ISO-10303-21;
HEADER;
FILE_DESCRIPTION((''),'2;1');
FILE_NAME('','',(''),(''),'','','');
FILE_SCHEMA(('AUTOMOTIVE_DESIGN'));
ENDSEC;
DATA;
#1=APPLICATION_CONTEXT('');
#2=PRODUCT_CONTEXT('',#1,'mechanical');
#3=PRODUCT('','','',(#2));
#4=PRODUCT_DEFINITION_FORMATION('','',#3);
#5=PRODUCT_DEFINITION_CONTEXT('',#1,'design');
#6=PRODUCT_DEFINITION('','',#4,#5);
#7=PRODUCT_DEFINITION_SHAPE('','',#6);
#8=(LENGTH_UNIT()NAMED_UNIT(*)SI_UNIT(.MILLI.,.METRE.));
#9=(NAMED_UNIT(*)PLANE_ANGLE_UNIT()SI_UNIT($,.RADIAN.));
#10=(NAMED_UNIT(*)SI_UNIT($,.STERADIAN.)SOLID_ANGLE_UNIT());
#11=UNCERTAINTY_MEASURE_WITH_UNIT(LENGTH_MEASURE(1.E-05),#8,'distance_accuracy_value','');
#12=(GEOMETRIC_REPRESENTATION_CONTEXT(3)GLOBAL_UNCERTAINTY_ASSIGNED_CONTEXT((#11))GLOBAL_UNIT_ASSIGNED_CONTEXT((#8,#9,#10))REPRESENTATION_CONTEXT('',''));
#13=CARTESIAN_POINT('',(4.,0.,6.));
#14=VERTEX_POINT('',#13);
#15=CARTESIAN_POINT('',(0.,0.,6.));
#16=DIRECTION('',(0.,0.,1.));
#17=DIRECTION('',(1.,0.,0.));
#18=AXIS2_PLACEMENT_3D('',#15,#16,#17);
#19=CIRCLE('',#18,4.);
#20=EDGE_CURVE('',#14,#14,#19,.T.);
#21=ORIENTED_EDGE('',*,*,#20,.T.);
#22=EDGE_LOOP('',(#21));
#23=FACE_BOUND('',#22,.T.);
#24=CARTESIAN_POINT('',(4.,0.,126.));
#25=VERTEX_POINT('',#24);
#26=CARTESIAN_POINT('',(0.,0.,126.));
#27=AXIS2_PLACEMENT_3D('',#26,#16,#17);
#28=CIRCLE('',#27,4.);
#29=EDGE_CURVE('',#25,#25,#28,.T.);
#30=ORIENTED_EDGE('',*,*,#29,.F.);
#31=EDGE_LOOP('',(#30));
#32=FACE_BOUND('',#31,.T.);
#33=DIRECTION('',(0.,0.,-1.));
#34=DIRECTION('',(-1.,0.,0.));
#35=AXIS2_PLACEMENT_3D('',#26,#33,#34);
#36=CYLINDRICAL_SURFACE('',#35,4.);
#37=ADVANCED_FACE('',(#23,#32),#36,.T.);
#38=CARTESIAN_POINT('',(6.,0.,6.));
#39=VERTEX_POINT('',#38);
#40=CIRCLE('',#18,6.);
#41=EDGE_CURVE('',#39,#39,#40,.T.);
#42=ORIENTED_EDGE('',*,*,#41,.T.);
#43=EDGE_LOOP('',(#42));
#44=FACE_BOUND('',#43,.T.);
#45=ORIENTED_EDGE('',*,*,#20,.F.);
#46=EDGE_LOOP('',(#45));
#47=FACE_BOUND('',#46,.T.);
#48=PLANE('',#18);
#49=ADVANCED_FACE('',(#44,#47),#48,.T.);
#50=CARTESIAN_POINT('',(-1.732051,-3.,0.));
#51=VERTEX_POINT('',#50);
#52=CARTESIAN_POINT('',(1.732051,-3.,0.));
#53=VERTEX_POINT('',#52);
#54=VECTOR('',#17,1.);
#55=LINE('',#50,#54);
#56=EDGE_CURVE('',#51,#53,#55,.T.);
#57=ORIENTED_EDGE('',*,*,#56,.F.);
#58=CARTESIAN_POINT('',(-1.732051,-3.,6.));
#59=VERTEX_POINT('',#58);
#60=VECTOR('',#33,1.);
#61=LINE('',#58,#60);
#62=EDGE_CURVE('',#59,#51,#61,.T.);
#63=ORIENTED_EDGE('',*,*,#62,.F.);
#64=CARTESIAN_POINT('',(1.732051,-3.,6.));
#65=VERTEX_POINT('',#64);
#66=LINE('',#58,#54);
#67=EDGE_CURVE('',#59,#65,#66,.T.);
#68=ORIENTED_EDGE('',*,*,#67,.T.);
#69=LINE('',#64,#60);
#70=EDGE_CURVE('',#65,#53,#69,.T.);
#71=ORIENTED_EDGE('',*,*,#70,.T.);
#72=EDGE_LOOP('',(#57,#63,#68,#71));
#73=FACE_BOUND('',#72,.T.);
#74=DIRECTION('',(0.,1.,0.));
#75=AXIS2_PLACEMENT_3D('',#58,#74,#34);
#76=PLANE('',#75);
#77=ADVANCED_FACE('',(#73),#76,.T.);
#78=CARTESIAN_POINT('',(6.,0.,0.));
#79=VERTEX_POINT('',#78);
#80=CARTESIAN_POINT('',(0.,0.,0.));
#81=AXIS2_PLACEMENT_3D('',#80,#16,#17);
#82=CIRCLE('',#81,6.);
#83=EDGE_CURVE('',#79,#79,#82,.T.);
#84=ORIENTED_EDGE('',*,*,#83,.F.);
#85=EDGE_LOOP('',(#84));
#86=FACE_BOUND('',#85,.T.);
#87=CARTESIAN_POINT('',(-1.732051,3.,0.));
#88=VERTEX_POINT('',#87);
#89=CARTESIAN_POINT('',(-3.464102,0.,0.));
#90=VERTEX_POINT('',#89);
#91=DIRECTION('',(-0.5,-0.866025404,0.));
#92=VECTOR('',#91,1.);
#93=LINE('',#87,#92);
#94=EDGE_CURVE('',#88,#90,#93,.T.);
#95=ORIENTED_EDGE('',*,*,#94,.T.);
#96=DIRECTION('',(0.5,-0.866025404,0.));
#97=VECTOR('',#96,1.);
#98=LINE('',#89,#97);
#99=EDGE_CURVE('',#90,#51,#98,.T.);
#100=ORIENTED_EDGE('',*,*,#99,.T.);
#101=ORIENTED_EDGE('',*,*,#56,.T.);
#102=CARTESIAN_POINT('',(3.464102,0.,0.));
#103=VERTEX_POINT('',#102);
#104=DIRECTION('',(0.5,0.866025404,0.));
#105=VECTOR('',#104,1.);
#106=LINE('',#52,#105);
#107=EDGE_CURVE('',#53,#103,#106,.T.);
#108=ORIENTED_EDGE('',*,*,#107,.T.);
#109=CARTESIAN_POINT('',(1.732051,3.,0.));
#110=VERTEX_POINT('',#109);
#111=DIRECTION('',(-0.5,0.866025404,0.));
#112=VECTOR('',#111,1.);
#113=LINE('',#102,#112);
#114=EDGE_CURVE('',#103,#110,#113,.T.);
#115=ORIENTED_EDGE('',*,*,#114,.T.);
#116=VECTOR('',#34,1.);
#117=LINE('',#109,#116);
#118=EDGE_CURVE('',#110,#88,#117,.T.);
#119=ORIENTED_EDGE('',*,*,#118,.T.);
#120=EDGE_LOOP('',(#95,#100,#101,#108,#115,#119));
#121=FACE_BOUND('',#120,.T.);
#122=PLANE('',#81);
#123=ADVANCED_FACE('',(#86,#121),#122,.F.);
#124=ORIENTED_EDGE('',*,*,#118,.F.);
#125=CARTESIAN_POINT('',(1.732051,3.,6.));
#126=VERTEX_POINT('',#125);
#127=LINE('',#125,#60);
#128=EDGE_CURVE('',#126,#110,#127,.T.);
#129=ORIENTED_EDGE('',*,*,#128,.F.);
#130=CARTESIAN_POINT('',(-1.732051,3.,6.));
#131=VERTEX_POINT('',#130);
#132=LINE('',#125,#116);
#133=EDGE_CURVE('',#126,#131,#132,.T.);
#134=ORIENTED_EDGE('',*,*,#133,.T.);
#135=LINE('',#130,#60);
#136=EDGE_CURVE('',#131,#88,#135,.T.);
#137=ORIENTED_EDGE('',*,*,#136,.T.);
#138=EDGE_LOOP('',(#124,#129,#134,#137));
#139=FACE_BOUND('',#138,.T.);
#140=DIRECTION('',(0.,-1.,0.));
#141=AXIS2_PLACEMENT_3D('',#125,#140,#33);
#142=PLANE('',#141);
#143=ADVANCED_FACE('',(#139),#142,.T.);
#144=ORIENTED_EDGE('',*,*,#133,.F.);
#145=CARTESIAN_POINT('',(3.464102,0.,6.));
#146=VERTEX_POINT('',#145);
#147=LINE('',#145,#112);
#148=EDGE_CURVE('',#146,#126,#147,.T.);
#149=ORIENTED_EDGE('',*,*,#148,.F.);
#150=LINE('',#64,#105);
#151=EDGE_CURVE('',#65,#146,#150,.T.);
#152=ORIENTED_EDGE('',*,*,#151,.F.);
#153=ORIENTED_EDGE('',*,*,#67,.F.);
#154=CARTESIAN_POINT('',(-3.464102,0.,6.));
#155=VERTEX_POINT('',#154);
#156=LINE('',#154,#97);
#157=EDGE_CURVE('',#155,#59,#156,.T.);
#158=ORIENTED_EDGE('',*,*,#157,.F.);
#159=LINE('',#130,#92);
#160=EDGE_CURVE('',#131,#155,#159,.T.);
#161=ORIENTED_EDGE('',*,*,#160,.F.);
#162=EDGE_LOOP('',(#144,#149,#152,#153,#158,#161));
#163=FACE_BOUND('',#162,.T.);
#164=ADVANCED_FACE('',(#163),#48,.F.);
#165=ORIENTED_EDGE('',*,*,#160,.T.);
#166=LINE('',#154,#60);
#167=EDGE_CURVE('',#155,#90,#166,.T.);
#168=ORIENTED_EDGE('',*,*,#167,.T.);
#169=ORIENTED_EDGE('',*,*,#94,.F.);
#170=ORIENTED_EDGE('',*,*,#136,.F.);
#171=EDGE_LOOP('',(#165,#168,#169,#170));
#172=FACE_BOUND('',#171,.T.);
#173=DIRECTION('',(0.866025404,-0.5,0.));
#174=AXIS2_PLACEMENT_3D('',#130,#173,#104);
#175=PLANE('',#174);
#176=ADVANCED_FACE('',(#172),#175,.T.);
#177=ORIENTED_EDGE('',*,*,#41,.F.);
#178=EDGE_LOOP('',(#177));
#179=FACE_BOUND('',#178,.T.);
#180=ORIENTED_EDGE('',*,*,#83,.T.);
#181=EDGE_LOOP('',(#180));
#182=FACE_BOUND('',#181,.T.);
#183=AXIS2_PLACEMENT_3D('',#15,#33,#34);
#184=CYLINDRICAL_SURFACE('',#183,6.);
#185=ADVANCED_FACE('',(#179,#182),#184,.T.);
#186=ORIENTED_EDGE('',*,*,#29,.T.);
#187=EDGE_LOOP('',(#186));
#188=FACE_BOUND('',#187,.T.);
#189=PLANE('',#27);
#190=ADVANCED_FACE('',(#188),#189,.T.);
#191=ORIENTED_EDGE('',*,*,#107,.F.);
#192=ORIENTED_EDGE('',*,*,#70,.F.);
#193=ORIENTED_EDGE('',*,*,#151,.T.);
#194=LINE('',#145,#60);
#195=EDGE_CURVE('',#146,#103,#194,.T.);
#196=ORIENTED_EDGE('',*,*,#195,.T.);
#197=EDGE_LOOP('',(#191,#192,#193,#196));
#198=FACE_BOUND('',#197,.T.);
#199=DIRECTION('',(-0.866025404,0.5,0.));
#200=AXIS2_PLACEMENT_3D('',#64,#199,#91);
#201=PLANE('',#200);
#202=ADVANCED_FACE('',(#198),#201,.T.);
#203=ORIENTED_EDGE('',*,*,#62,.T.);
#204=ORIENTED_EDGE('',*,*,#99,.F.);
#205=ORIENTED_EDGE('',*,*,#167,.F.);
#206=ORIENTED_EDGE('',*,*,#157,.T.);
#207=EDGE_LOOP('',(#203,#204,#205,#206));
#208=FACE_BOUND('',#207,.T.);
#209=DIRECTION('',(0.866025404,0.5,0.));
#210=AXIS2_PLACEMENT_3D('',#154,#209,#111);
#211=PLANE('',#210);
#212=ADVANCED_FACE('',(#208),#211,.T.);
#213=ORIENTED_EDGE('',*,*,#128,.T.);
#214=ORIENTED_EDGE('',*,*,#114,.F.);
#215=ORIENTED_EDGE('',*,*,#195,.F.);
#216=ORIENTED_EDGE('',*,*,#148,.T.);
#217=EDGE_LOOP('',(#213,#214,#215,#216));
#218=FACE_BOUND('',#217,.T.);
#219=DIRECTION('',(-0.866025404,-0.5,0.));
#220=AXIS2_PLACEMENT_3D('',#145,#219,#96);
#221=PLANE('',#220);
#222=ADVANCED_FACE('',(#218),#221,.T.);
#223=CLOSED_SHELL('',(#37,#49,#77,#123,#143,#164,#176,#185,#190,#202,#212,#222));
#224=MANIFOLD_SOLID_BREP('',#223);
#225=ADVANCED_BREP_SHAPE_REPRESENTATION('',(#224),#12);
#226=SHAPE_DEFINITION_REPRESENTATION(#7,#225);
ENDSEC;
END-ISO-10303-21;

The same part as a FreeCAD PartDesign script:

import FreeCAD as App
import Part
import Sketcher

V = App.Vector
Q = App.Units.Quantity

doc = App.newDocument("Part")
params = doc.addObject("Spreadsheet::Sheet", "Params")
for row, (alias, value) in enumerate([
    ("sketch1_diameter", "12 mm"),
    ("pad1_length", "6 mm"),
    ("sketch2_diameter", "8 mm"),
    ("pad2_length", "120 mm"),
], start=1):
    params.set(f"A{row}", alias)
    params.set(f"B{row}", "=" + value)
    params.setAlias(f"B{row}", alias)

body = doc.addObject("PartDesign::Body", "Body")

# Sketch on XY plane
sketch1 = doc.addObject("Sketcher::SketchObject", "Sketch")
body.addObject(sketch1)
sketch1.AttachmentSupport = (doc.XY_Plane, [""])
sketch1.MapMode = "FlatFace"
sketch1.addGeometry([
    Part.Circle(V(0, 0, 0), V(0, 0, 1), 6),  # 0
    Part.LineSegment(V(1.7, 3, 0), V(3.5, 0, 0)),  # 1
    Part.LineSegment(V(3.5, 0, 0), V(1.7, -3, 0)),  # 2
    Part.LineSegment(V(1.7, -3, 0), V(-1.7, -3, 0)),  # 3
    Part.LineSegment(V(-1.7, -3, 0), V(-3.5, 0, 0)),  # 4
    Part.LineSegment(V(-3.5, 0, 0), V(-1.7, 3, 0)),  # 5
    Part.LineSegment(V(-1.7, 3, 0), V(1.7, 3, 0)),  # 6
], False)
sketch1.addConstraint([
    Sketcher.Constraint("Coincident", 1, 2, 2, 1),
    Sketcher.Constraint("Coincident", 2, 2, 3, 1),
    Sketcher.Constraint("Coincident", 3, 2, 4, 1),
    Sketcher.Constraint("Coincident", 4, 2, 5, 1),
    Sketcher.Constraint("Coincident", 5, 2, 6, 1),
    Sketcher.Constraint("Coincident", 6, 2, 1, 1),
    Sketcher.Constraint("Horizontal", 3),
    Sketcher.Constraint("Horizontal", 6),
    Sketcher.Constraint("Coincident", 0, 3, -1, 1),
    Sketcher.Constraint("Symmetric", 1, 2, 4, 2, -1, 1),
    Sketcher.Constraint("Symmetric", 2, 2, 5, 2, -1, 1),
    Sketcher.Constraint("PointOnObject", 1, 2, -1),
    Sketcher.Constraint("Parallel", 1, 4),
    Sketcher.Constraint("Vertical", 3, 2, 5, 2),
    Sketcher.Constraint("Diameter", 0, 12.0),
    Sketcher.Constraint("Angle", 1, Q("-60 deg")),
    Sketcher.Constraint("DistanceY", 2, 2, -1, 1, 3.0),
    Sketcher.Constraint("DistanceX", 3, 2, 3, 1, 3.464102),
])
sketch1.setExpression("Constraints[14]", "Params.sketch1_diameter")
pad1 = doc.addObject("PartDesign::Pad", "Pad")
body.addObject(pad1)
pad1.Profile = sketch1
pad1.setExpression("Length", "Params.pad1_length")

# Sketch on XY plane
sketch2 = doc.addObject("Sketcher::SketchObject", "Sketch001")
body.addObject(sketch2)
sketch2.AttachmentSupport = (doc.XY_Plane, [""])
sketch2.MapMode = "FlatFace"
sketch2.AttachmentOffset = App.Placement(V(0, 0, 6), App.Rotation())
sketch2.addGeometry(Part.Circle(V(0, 0, 0), V(0, 0, 1), 4), False)
sketch2.addConstraint([
    Sketcher.Constraint("Coincident", 0, 3, -1, 1),
    Sketcher.Constraint("Diameter", 0, 8.0),
])
sketch2.setExpression("Constraints[1]", "Params.sketch2_diameter")
pad2 = doc.addObject("PartDesign::Pad", "Pad001")
body.addObject(pad2)
pad2.Profile = sketch2
pad2.setExpression("Length", "Params.pad2_length")

doc.recompute()
